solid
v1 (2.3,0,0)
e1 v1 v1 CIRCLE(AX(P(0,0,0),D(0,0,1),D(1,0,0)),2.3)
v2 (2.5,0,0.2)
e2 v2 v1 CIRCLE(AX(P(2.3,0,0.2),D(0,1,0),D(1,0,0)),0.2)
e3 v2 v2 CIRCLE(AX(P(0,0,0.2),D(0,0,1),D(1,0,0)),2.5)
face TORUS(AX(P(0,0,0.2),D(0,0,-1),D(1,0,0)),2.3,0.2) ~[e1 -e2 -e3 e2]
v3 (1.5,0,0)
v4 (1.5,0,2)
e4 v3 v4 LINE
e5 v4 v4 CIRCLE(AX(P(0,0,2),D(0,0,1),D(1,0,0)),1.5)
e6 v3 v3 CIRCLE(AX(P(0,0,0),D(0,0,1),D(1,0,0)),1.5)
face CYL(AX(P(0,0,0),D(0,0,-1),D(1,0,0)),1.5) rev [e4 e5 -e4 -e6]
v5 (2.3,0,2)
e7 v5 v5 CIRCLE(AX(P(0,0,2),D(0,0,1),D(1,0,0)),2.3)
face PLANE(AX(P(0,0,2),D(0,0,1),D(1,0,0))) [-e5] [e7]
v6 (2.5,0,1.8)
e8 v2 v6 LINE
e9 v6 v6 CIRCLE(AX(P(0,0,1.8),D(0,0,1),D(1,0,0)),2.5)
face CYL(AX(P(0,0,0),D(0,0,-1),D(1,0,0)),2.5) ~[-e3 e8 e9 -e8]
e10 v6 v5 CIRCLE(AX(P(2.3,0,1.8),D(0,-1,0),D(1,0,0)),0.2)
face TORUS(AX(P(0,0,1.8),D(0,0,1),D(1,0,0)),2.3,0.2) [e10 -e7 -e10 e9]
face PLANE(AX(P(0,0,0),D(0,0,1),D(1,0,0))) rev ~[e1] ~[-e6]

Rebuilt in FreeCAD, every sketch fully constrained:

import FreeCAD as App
import Part
import Sketcher
Q = App.Units.Quantity


def edges_at(feature, points):
    """Names of the edges that pass closest to the given points."""
    edges = feature.Shape.Edges
    near = lambda p: min(range(len(edges)), key=lambda i: edges[i].distToShape(Part.Vertex(*p))[0])
    return sorted({f"Edge{near(p) + 1}" for p in points})

doc = App.newDocument("Part")
body = doc.addObject("PartDesign::Body", "Body")

sketch1 = body.newObject("Sketcher::SketchObject", "Sketch")
sketch1.AttachmentSupport = (doc.getObject("XY_Plane"), [""])
sketch1.MapMode = "FlatFace"
sketch1.addGeometry(Part.Circle(App.Vector(0, 0, 0), App.Vector(0, 0, 1), 2.5), False)
sketch1.addGeometry(Part.Circle(App.Vector(0, 0, 0), App.Vector(0, 0, 1), 1.5), False)
sketch1.addConstraint(Sketcher.Constraint("Coincident", 0, 3, -1, 1))
sketch1.addConstraint(Sketcher.Constraint("Coincident", 1, 3, -1, 1))
sketch1.addConstraint(Sketcher.Constraint("Diameter", 0, Q("5 mm")))
sketch1.addConstraint(Sketcher.Constraint("Diameter", 1, Q("3 mm")))
pad1 = body.newObject("PartDesign::Pad", "Pad")
pad1.Profile = sketch1
pad1.Length = 2
doc.recompute()

fillet = body.newObject("PartDesign::Fillet", "Fillet")
fillet.Base = (pad1, edges_at(pad1, [(-2.5, 0, 2), (-2.5, 0, 0)]))
fillet.Radius = 0.2

doc.recompute()
